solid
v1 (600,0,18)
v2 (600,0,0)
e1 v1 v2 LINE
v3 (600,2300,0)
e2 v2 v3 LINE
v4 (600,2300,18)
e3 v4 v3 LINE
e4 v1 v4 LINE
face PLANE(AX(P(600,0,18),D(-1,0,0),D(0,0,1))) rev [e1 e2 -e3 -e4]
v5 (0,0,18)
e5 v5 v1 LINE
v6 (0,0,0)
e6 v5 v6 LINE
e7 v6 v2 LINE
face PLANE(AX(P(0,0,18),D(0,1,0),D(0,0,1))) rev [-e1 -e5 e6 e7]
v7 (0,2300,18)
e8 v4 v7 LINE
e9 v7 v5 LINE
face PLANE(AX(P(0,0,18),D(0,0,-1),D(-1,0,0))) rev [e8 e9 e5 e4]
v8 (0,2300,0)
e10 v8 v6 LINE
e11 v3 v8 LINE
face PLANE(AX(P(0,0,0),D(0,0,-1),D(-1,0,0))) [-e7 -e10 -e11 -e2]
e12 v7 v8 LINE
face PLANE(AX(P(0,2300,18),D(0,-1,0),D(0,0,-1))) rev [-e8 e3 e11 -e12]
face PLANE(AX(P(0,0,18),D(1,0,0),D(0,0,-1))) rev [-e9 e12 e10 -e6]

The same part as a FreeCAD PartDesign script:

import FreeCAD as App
import Part
import Sketcher

V = App.Vector


def add_polygon(sketch, points):
    """Adds a closed chain of lines whose ends are joined by coincident constraints."""
    first, n = sketch.GeometryCount, len(points)
    for a, b in zip(points, points[1:] + points[:1]):
        sketch.addGeometry(Part.LineSegment(App.Vector(*a, 0), App.Vector(*b, 0)), False)
    for i in range(n):
        sketch.addConstraint(Sketcher.Constraint("Coincident", first + i, 2, first + (i + 1) % n, 1))

doc = App.newDocument("Part")
body = doc.addObject("PartDesign::Body", "Body")

sketch1 = body.newObject("Sketcher::SketchObject", "Sketch")
sketch1.AttachmentSupport = (doc.getObject("XY_Plane"), [""])
sketch1.MapMode = "FlatFace"
add_polygon(sketch1, [(0, 2300), (0, 0), (600, 0), (600, 2300)])
sketch1.addConstraint(Sketcher.Constraint("Vertical", 0))
sketch1.addConstraint(Sketcher.Constraint("Horizontal", 1))
sketch1.addConstraint(Sketcher.Constraint("Vertical", 2))
sketch1.addConstraint(Sketcher.Constraint("Horizontal", 3))
sketch1.addConstraint(Sketcher.Constraint("Coincident", 0, 2, -1, 1))
sketch1.addConstraint(Sketcher.Constraint("DistanceX", 1, 1, 1, 2, 600.0))
sketch1.addConstraint(Sketcher.Constraint("DistanceY", 0, 2, 0, 1, 2300.0))
pad1 = body.newObject("PartDesign::Pad", "Pad")
pad1.Profile = sketch1
pad1.Length = 18

doc.recompute()
